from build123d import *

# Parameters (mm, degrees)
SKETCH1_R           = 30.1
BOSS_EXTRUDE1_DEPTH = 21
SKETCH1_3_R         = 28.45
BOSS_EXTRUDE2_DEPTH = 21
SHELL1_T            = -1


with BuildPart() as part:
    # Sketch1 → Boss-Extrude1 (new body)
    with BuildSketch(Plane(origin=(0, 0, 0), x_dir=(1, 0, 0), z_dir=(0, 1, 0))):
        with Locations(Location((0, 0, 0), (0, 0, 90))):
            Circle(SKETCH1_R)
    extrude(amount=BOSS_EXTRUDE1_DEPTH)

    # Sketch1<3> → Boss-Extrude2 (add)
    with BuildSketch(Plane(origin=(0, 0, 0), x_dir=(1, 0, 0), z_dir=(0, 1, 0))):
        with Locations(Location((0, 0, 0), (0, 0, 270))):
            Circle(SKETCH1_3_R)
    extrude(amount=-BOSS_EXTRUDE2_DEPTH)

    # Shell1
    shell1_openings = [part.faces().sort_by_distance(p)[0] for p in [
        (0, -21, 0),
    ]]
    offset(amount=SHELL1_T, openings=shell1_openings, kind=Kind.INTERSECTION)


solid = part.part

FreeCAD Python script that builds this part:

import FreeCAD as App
import Part
import Sketcher
Q = App.Units.Quantity


def faces_at(feature, points):
    """Names of the faces that lie closest to the given points."""
    faces = feature.Shape.Faces
    near = lambda p: min(range(len(faces)), key=lambda i: faces[i].distToShape(Part.Vertex(*p))[0])
    return sorted({f"Face{near(p) + 1}" for p in points})

doc = App.newDocument("Part")
params = doc.addObject("Spreadsheet::Sheet", "Params")
for row, (alias, value) in enumerate([
    ("sketch1_diameter", "60.2 mm"),
    ("pad1_length", "21 mm"),
    ("sketch2_diameter", "56.9 mm"),
    ("pad2_length", "21 mm"),
    ("thickness_wall", "1 mm"),
], start=1):
    params.set(f"A{row}", alias)
    params.set(f"B{row}", "=" + value)
    params.setAlias(f"B{row}", alias)

body = doc.addObject("PartDesign::Body", "Body")

# Sketch on XZ plane
sketch1 = doc.addObject("Sketcher::SketchObject", "Sketch")
body.addObject(sketch1)
sketch1.AttachmentSupport = (doc.XZ_Plane, [""])
sketch1.MapMode = "FlatFace"
sketch1.addGeometry(Part.Circle(App.Vector(0, 0, 0), App.Vector(0, 0, 1), 30), False)
sketch1.addConstraint([
    Sketcher.Constraint("Coincident", 0, 3, -1, 1),
    Sketcher.Constraint("Diameter", 0, Q("60.2 mm")),
])
sketch1.setExpression("Constraints[1]", "Params.sketch1_diameter")
pad1 = doc.addObject("PartDesign::Pad", "Pad")
body.addObject(pad1)
pad1.Profile = sketch1
pad1.setExpression("Length", "Params.pad1_length")
pad1.Reversed = True

# Sketch on XZ plane
sketch2 = doc.addObject("Sketcher::SketchObject", "Sketch001")
body.addObject(sketch2)
sketch2.AttachmentSupport = (doc.XZ_Plane, [""])
sketch2.MapMode = "FlatFace"
sketch2.addGeometry(Part.Circle(App.Vector(0, 0, 0), App.Vector(0, 0, 1), 28), False)
sketch2.addConstraint([
    Sketcher.Constraint("Coincident", 0, 3, -1, 1),
    Sketcher.Constraint("Diameter", 0, Q("56.9 mm")),
])
sketch2.setExpression("Constraints[1]", "Params.sketch2_diameter")
pad2 = doc.addObject("PartDesign::Pad", "Pad001")
body.addObject(pad2)
pad2.Profile = sketch2
pad2.setExpression("Length", "Params.pad2_length")
doc.recompute()

thickness = doc.addObject("PartDesign::Thickness", "Thickness")
body.addObject(thickness)
thickness.Base = (pad2, faces_at(pad2, [(0, -21, 0)]))
thickness.setExpression("Value", "Params.thickness_wall")
thickness.Reversed = True
thickness.Join = "Intersection"

doc.recompute()
